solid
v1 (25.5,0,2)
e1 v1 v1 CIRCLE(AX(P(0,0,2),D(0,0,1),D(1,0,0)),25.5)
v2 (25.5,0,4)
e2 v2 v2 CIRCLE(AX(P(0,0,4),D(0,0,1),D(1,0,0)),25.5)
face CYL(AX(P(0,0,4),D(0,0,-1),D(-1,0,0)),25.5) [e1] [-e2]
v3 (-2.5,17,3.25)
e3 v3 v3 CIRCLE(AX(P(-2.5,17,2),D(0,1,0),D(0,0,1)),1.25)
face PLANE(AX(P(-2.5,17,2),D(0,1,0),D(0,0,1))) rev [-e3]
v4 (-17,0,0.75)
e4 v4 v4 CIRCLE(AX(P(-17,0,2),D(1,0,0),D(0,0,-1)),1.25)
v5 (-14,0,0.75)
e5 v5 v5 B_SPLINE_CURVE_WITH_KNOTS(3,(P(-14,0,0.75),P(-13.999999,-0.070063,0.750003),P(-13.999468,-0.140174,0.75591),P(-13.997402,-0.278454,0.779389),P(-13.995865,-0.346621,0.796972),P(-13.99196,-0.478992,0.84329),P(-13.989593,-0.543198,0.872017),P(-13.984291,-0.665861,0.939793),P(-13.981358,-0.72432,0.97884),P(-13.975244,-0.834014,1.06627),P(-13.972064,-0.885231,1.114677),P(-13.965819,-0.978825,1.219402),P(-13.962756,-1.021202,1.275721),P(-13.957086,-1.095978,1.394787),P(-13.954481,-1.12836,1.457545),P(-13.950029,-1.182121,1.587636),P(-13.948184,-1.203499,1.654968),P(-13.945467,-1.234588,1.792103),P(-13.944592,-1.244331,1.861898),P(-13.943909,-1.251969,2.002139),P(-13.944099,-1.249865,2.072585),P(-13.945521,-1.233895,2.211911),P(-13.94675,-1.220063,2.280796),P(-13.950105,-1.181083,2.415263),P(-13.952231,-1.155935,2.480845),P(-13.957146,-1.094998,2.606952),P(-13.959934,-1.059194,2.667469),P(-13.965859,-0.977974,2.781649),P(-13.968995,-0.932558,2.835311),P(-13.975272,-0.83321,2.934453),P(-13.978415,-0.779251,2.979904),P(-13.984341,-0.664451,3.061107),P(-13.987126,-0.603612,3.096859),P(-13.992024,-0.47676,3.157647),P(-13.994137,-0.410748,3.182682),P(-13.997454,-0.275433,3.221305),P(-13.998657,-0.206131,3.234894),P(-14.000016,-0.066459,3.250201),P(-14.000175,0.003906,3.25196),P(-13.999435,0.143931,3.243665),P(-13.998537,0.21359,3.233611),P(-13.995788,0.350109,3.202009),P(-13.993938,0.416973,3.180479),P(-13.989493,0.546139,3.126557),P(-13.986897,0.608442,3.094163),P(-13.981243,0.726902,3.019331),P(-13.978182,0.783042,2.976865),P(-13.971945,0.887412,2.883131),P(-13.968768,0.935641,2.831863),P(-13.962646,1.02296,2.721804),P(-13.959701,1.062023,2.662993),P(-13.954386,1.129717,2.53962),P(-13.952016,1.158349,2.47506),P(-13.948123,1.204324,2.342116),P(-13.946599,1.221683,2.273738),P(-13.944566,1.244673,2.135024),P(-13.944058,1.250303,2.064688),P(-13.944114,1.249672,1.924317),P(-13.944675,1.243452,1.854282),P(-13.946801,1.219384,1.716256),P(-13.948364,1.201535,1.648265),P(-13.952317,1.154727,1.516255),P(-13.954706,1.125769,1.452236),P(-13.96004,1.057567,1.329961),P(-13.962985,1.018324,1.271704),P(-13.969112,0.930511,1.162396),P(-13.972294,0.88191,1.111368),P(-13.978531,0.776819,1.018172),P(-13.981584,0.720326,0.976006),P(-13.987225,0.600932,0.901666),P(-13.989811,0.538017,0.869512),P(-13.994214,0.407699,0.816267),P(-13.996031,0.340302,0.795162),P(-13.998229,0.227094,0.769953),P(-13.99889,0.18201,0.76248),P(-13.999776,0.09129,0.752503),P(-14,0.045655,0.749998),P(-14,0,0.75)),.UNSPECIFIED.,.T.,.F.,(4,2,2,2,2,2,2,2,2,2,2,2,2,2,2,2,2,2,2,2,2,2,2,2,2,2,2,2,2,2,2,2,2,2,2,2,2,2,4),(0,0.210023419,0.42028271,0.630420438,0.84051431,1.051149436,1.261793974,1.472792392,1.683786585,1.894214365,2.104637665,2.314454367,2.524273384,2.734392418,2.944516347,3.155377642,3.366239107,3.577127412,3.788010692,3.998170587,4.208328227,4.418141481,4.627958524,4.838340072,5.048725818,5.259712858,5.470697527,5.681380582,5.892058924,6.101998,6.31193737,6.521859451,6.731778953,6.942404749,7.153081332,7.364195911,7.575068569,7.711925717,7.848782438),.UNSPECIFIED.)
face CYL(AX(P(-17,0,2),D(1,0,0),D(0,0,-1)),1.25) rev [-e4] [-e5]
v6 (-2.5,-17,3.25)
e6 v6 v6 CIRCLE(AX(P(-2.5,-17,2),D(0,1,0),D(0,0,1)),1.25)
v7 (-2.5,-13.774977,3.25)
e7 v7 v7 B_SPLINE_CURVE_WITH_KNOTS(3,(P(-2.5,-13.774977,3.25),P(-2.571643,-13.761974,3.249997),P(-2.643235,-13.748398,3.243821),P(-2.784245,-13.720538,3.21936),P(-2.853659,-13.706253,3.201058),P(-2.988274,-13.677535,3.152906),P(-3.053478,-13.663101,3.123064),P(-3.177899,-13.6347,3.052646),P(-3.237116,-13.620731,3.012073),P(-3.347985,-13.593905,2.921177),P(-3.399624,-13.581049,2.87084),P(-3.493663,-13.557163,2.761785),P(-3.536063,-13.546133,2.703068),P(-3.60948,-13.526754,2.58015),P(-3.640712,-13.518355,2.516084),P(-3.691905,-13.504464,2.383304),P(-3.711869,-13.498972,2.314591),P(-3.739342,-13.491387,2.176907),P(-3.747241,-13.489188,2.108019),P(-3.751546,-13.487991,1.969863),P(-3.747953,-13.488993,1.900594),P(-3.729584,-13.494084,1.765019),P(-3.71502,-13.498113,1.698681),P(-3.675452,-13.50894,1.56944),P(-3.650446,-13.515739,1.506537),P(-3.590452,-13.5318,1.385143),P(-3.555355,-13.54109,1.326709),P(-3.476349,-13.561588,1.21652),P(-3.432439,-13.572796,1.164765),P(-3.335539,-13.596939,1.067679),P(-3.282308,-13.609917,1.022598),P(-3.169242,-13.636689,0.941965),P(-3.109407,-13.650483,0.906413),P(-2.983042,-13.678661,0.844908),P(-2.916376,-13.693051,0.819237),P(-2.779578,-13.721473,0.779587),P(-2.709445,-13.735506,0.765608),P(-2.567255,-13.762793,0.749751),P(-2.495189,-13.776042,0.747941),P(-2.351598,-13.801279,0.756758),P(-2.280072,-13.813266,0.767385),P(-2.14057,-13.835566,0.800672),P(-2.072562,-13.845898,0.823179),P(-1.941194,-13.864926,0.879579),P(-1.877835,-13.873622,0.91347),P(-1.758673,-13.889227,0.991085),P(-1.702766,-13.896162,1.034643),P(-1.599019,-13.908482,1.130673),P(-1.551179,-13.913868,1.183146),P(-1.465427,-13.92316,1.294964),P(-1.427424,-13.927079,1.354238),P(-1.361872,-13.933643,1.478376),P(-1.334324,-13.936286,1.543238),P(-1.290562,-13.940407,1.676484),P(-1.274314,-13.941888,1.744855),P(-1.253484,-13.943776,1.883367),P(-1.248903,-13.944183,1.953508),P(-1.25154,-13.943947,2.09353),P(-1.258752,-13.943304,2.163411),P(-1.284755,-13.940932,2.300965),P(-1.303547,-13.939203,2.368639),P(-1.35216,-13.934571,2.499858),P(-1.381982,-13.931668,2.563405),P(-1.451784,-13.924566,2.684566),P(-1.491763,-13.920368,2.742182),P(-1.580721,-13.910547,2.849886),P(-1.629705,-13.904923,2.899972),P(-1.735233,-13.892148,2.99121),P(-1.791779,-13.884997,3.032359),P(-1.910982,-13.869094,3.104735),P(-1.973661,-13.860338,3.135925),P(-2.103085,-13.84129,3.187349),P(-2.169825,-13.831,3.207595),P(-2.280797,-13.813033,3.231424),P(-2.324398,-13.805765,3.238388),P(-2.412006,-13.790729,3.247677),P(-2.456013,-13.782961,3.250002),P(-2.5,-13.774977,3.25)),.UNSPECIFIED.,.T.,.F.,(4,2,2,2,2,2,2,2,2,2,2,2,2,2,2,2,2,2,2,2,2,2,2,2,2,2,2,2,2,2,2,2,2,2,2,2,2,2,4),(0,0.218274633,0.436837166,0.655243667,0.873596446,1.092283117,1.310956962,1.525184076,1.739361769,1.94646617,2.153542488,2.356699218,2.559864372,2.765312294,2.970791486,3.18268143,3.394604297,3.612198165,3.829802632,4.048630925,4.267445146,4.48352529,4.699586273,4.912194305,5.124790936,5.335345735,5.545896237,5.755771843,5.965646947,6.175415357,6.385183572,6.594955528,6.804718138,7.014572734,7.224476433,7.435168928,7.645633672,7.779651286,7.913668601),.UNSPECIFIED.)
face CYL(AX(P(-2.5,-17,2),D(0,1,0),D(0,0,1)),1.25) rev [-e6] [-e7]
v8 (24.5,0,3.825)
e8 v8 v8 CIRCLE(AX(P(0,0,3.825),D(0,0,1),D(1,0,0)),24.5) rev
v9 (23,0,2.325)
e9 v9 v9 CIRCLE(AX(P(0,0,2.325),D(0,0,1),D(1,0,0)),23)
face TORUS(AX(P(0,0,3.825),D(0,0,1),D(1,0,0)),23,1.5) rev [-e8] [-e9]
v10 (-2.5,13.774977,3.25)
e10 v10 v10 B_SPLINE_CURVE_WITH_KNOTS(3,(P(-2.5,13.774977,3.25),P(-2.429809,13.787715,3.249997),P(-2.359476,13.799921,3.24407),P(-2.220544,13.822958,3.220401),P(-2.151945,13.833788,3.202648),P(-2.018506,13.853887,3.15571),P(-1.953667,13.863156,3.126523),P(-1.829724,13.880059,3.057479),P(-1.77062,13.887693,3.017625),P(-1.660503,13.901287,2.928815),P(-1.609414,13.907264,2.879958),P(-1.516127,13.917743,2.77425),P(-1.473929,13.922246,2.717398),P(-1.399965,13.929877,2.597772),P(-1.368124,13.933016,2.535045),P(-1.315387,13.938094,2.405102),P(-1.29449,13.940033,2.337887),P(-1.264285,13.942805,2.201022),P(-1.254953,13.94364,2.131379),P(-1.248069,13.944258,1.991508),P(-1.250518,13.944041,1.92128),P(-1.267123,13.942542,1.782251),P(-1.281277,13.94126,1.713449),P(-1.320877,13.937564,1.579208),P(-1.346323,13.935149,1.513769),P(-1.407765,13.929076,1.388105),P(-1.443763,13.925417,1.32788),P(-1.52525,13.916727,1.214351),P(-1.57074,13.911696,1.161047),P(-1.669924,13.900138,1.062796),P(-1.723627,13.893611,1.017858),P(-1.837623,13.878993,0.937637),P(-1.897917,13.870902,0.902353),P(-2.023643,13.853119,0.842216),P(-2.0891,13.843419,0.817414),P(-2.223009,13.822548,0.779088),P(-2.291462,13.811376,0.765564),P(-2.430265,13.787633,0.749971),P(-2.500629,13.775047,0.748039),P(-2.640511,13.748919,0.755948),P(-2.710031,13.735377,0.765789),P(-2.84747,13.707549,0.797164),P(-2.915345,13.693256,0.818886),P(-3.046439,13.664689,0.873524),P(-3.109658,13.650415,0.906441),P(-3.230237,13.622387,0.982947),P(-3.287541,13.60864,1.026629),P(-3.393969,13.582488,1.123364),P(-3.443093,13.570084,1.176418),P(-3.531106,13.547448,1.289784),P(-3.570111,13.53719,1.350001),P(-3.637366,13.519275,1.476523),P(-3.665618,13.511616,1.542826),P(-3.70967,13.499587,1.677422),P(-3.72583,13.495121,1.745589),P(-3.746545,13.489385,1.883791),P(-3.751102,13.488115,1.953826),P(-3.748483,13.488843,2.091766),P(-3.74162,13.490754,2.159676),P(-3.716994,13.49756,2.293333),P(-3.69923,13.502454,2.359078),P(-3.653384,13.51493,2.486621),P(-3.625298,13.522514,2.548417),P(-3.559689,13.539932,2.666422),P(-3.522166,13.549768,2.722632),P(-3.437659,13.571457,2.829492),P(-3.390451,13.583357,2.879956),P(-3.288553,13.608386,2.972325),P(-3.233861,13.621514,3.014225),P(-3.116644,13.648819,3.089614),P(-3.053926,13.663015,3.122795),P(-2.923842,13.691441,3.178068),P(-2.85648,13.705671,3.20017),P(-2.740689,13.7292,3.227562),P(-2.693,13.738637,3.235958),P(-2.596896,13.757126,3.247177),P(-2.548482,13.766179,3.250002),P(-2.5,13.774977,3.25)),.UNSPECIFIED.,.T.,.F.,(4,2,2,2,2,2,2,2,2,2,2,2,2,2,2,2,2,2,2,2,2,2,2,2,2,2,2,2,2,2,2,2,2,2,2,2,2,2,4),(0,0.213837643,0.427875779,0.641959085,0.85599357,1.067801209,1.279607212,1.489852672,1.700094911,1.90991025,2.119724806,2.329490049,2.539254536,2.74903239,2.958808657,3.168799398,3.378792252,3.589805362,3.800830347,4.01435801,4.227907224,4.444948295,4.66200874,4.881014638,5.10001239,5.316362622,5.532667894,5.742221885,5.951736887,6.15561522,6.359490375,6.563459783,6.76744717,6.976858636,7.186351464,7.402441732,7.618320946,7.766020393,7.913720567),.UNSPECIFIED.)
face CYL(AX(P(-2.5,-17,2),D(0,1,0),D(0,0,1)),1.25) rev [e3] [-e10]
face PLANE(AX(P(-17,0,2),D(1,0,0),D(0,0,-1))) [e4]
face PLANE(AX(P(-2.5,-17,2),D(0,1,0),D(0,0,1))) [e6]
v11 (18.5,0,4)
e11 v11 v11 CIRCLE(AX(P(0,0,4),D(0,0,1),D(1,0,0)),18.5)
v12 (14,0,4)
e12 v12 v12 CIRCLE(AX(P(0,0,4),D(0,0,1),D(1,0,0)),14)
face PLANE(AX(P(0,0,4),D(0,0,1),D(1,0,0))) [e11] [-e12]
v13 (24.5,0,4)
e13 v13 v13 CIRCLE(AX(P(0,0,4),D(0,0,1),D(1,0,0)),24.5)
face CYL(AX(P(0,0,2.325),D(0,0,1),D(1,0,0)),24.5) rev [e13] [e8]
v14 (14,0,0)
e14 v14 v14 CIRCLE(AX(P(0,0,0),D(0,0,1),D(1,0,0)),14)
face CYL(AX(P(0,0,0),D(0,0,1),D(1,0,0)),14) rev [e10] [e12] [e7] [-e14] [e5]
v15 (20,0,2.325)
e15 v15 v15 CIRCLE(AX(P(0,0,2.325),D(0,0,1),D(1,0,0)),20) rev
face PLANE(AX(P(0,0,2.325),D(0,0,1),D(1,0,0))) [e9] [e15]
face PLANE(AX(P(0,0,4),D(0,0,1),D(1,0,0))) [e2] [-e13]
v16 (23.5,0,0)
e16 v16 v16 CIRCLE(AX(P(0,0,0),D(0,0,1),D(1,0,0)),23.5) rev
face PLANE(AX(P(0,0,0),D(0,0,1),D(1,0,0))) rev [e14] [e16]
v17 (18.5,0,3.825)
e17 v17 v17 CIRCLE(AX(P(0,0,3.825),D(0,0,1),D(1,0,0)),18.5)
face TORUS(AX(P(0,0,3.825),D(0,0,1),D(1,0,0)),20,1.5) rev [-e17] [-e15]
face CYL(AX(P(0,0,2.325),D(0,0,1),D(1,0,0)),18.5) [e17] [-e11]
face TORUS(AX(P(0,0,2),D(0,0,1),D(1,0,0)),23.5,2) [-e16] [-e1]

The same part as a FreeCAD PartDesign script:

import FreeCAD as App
import Part
import Sketcher

V = App.Vector


def edges_at(feature, points):
    """Names of the edges that pass closest to the given points."""
    edges = feature.Shape.Edges
    near = lambda p: min(range(len(edges)), key=lambda i: edges[i].distToShape(Part.Vertex(*p))[0])
    return sorted({f"Edge{near(p) + 1}" for p in points})

doc = App.newDocument("Part")
body = doc.addObject("PartDesign::Body", "Body")

sketch1 = body.newObject("Sketcher::SketchObject", "Sketch")
sketch1.AttachmentSupport = (doc.getObject("XY_Plane"), [""])
sketch1.MapMode = "FlatFace"
sketch1.addGeometry(Part.Circle(V(0, 0, 0), V(0, 0, 1), 26), False)
sketch1.addConstraint(Sketcher.Constraint("Coincident", 0, 3, -1, 1))
sketch1.addConstraint(Sketcher.Constraint("Diameter", 0, 51.0))
pad1 = body.newObject("PartDesign::Pad", "Pad")
pad1.Profile = sketch1
pad1.Length = 4

sketch2 = body.newObject("Sketcher::SketchObject", "Sketch001")
sketch2.AttachmentSupport = (doc.getObject("XY_Plane"), [""])
sketch2.MapMode = "FlatFace"
sketch2.AttachmentOffset = App.Placement(V(0, 0, 4), App.Rotation())
sketch2.addGeometry(Part.Circle(V(0, 0, 0), V(0, 0, 1), 24), False)
sketch2.addGeometry(Part.Circle(V(0, 0, 0), V(0, 0, 1), 18), False)
sketch2.addConstraint(Sketcher.Constraint("Coincident", 0, 3, -1, 1))
sketch2.addConstraint(Sketcher.Constraint("Coincident", 1, 3, -1, 1))
sketch2.addConstraint(Sketcher.Constraint("Diameter", 0, 49.0))
sketch2.addConstraint(Sketcher.Constraint("Diameter", 1, 37.0))
pocket1 = body.newObject("PartDesign::Pocket", "Pocket")
pocket1.Profile = sketch2
pocket1.Length = 1.675
doc.recompute()

fillet = body.newObject("PartDesign::Fillet", "Fillet")
fillet.Base = (pocket1, edges_at(pocket1, [(-24.5, 0, 2.325), (-18.5, 0, 2.325)]))
fillet.Radius = 1.5

sketch3 = body.newObject("Sketcher::SketchObject", "Sketch002")
sketch3.AttachmentSupport = (doc.getObject("XY_Plane"), [""])
sketch3.MapMode = "FlatFace"
sketch3.AttachmentOffset = App.Placement(V(0, 0, 4), App.Rotation())
sketch3.addGeometry(Part.Circle(V(0, 0, 0), V(0, 0, 1), 14), False)
sketch3.addConstraint(Sketcher.Constraint("Coincident", 0, 3, -1, 1))
sketch3.addConstraint(Sketcher.Constraint("Diameter", 0, 28.0))
pocket2 = body.newObject("PartDesign::Pocket", "Pocket001")
pocket2.Profile = sketch3
pocket2.Length = 4
doc.recompute()

fillet2 = body.newObject("PartDesign::Fillet", "Fillet001")
fillet2.Base = (pocket2, edges_at(pocket2, [(-25.5, 0, 0)]))
fillet2.Radius = 2

sketch4 = body.newObject("Sketcher::SketchObject", "Sketch003")
sketch4.AttachmentSupport = (doc.getObject("YZ_Plane"), [""])
sketch4.MapMode = "FlatFace"
sketch4.addGeometry(Part.Circle(V(0, 2, 0), V(0, 0, 1), 1.2), False)
sketch4.addConstraint(Sketcher.Constraint("PointOnObject", 0, 3, -2))
sketch4.addConstraint(Sketcher.Constraint("Diameter", 0, 2.5))
sketch4.addConstraint(Sketcher.Constraint("DistanceY", -1, 1, 0, 3, 2.0))
pocket3 = body.newObject("PartDesign::Pocket", "Pocket002")
pocket3.Profile = sketch4
pocket3.Length = 17

sketch5 = body.newObject("Sketcher::SketchObject", "Sketch004")
sketch5.AttachmentSupport = (doc.getObject("XZ_Plane"), [""])
sketch5.MapMode = "FlatFace"
sketch5.addGeometry(Part.Circle(V(-2.5, 2, 0), V(0, 0, 1), 1.2), False)
sketch5.addConstraint(Sketcher.Constraint("Diameter", 0, 2.5))
sketch5.addConstraint(Sketcher.Constraint("DistanceY", -1, 1, 0, 3, 2.0))
sketch5.addConstraint(Sketcher.Constraint("DistanceX", 0, 3, -1, 1, 2.5))
pocket4 = body.newObject("PartDesign::Pocket", "Pocket003")
pocket4.Profile = sketch5
pocket4.Length = 34
pocket4.Midplane = True

doc.recompute()
